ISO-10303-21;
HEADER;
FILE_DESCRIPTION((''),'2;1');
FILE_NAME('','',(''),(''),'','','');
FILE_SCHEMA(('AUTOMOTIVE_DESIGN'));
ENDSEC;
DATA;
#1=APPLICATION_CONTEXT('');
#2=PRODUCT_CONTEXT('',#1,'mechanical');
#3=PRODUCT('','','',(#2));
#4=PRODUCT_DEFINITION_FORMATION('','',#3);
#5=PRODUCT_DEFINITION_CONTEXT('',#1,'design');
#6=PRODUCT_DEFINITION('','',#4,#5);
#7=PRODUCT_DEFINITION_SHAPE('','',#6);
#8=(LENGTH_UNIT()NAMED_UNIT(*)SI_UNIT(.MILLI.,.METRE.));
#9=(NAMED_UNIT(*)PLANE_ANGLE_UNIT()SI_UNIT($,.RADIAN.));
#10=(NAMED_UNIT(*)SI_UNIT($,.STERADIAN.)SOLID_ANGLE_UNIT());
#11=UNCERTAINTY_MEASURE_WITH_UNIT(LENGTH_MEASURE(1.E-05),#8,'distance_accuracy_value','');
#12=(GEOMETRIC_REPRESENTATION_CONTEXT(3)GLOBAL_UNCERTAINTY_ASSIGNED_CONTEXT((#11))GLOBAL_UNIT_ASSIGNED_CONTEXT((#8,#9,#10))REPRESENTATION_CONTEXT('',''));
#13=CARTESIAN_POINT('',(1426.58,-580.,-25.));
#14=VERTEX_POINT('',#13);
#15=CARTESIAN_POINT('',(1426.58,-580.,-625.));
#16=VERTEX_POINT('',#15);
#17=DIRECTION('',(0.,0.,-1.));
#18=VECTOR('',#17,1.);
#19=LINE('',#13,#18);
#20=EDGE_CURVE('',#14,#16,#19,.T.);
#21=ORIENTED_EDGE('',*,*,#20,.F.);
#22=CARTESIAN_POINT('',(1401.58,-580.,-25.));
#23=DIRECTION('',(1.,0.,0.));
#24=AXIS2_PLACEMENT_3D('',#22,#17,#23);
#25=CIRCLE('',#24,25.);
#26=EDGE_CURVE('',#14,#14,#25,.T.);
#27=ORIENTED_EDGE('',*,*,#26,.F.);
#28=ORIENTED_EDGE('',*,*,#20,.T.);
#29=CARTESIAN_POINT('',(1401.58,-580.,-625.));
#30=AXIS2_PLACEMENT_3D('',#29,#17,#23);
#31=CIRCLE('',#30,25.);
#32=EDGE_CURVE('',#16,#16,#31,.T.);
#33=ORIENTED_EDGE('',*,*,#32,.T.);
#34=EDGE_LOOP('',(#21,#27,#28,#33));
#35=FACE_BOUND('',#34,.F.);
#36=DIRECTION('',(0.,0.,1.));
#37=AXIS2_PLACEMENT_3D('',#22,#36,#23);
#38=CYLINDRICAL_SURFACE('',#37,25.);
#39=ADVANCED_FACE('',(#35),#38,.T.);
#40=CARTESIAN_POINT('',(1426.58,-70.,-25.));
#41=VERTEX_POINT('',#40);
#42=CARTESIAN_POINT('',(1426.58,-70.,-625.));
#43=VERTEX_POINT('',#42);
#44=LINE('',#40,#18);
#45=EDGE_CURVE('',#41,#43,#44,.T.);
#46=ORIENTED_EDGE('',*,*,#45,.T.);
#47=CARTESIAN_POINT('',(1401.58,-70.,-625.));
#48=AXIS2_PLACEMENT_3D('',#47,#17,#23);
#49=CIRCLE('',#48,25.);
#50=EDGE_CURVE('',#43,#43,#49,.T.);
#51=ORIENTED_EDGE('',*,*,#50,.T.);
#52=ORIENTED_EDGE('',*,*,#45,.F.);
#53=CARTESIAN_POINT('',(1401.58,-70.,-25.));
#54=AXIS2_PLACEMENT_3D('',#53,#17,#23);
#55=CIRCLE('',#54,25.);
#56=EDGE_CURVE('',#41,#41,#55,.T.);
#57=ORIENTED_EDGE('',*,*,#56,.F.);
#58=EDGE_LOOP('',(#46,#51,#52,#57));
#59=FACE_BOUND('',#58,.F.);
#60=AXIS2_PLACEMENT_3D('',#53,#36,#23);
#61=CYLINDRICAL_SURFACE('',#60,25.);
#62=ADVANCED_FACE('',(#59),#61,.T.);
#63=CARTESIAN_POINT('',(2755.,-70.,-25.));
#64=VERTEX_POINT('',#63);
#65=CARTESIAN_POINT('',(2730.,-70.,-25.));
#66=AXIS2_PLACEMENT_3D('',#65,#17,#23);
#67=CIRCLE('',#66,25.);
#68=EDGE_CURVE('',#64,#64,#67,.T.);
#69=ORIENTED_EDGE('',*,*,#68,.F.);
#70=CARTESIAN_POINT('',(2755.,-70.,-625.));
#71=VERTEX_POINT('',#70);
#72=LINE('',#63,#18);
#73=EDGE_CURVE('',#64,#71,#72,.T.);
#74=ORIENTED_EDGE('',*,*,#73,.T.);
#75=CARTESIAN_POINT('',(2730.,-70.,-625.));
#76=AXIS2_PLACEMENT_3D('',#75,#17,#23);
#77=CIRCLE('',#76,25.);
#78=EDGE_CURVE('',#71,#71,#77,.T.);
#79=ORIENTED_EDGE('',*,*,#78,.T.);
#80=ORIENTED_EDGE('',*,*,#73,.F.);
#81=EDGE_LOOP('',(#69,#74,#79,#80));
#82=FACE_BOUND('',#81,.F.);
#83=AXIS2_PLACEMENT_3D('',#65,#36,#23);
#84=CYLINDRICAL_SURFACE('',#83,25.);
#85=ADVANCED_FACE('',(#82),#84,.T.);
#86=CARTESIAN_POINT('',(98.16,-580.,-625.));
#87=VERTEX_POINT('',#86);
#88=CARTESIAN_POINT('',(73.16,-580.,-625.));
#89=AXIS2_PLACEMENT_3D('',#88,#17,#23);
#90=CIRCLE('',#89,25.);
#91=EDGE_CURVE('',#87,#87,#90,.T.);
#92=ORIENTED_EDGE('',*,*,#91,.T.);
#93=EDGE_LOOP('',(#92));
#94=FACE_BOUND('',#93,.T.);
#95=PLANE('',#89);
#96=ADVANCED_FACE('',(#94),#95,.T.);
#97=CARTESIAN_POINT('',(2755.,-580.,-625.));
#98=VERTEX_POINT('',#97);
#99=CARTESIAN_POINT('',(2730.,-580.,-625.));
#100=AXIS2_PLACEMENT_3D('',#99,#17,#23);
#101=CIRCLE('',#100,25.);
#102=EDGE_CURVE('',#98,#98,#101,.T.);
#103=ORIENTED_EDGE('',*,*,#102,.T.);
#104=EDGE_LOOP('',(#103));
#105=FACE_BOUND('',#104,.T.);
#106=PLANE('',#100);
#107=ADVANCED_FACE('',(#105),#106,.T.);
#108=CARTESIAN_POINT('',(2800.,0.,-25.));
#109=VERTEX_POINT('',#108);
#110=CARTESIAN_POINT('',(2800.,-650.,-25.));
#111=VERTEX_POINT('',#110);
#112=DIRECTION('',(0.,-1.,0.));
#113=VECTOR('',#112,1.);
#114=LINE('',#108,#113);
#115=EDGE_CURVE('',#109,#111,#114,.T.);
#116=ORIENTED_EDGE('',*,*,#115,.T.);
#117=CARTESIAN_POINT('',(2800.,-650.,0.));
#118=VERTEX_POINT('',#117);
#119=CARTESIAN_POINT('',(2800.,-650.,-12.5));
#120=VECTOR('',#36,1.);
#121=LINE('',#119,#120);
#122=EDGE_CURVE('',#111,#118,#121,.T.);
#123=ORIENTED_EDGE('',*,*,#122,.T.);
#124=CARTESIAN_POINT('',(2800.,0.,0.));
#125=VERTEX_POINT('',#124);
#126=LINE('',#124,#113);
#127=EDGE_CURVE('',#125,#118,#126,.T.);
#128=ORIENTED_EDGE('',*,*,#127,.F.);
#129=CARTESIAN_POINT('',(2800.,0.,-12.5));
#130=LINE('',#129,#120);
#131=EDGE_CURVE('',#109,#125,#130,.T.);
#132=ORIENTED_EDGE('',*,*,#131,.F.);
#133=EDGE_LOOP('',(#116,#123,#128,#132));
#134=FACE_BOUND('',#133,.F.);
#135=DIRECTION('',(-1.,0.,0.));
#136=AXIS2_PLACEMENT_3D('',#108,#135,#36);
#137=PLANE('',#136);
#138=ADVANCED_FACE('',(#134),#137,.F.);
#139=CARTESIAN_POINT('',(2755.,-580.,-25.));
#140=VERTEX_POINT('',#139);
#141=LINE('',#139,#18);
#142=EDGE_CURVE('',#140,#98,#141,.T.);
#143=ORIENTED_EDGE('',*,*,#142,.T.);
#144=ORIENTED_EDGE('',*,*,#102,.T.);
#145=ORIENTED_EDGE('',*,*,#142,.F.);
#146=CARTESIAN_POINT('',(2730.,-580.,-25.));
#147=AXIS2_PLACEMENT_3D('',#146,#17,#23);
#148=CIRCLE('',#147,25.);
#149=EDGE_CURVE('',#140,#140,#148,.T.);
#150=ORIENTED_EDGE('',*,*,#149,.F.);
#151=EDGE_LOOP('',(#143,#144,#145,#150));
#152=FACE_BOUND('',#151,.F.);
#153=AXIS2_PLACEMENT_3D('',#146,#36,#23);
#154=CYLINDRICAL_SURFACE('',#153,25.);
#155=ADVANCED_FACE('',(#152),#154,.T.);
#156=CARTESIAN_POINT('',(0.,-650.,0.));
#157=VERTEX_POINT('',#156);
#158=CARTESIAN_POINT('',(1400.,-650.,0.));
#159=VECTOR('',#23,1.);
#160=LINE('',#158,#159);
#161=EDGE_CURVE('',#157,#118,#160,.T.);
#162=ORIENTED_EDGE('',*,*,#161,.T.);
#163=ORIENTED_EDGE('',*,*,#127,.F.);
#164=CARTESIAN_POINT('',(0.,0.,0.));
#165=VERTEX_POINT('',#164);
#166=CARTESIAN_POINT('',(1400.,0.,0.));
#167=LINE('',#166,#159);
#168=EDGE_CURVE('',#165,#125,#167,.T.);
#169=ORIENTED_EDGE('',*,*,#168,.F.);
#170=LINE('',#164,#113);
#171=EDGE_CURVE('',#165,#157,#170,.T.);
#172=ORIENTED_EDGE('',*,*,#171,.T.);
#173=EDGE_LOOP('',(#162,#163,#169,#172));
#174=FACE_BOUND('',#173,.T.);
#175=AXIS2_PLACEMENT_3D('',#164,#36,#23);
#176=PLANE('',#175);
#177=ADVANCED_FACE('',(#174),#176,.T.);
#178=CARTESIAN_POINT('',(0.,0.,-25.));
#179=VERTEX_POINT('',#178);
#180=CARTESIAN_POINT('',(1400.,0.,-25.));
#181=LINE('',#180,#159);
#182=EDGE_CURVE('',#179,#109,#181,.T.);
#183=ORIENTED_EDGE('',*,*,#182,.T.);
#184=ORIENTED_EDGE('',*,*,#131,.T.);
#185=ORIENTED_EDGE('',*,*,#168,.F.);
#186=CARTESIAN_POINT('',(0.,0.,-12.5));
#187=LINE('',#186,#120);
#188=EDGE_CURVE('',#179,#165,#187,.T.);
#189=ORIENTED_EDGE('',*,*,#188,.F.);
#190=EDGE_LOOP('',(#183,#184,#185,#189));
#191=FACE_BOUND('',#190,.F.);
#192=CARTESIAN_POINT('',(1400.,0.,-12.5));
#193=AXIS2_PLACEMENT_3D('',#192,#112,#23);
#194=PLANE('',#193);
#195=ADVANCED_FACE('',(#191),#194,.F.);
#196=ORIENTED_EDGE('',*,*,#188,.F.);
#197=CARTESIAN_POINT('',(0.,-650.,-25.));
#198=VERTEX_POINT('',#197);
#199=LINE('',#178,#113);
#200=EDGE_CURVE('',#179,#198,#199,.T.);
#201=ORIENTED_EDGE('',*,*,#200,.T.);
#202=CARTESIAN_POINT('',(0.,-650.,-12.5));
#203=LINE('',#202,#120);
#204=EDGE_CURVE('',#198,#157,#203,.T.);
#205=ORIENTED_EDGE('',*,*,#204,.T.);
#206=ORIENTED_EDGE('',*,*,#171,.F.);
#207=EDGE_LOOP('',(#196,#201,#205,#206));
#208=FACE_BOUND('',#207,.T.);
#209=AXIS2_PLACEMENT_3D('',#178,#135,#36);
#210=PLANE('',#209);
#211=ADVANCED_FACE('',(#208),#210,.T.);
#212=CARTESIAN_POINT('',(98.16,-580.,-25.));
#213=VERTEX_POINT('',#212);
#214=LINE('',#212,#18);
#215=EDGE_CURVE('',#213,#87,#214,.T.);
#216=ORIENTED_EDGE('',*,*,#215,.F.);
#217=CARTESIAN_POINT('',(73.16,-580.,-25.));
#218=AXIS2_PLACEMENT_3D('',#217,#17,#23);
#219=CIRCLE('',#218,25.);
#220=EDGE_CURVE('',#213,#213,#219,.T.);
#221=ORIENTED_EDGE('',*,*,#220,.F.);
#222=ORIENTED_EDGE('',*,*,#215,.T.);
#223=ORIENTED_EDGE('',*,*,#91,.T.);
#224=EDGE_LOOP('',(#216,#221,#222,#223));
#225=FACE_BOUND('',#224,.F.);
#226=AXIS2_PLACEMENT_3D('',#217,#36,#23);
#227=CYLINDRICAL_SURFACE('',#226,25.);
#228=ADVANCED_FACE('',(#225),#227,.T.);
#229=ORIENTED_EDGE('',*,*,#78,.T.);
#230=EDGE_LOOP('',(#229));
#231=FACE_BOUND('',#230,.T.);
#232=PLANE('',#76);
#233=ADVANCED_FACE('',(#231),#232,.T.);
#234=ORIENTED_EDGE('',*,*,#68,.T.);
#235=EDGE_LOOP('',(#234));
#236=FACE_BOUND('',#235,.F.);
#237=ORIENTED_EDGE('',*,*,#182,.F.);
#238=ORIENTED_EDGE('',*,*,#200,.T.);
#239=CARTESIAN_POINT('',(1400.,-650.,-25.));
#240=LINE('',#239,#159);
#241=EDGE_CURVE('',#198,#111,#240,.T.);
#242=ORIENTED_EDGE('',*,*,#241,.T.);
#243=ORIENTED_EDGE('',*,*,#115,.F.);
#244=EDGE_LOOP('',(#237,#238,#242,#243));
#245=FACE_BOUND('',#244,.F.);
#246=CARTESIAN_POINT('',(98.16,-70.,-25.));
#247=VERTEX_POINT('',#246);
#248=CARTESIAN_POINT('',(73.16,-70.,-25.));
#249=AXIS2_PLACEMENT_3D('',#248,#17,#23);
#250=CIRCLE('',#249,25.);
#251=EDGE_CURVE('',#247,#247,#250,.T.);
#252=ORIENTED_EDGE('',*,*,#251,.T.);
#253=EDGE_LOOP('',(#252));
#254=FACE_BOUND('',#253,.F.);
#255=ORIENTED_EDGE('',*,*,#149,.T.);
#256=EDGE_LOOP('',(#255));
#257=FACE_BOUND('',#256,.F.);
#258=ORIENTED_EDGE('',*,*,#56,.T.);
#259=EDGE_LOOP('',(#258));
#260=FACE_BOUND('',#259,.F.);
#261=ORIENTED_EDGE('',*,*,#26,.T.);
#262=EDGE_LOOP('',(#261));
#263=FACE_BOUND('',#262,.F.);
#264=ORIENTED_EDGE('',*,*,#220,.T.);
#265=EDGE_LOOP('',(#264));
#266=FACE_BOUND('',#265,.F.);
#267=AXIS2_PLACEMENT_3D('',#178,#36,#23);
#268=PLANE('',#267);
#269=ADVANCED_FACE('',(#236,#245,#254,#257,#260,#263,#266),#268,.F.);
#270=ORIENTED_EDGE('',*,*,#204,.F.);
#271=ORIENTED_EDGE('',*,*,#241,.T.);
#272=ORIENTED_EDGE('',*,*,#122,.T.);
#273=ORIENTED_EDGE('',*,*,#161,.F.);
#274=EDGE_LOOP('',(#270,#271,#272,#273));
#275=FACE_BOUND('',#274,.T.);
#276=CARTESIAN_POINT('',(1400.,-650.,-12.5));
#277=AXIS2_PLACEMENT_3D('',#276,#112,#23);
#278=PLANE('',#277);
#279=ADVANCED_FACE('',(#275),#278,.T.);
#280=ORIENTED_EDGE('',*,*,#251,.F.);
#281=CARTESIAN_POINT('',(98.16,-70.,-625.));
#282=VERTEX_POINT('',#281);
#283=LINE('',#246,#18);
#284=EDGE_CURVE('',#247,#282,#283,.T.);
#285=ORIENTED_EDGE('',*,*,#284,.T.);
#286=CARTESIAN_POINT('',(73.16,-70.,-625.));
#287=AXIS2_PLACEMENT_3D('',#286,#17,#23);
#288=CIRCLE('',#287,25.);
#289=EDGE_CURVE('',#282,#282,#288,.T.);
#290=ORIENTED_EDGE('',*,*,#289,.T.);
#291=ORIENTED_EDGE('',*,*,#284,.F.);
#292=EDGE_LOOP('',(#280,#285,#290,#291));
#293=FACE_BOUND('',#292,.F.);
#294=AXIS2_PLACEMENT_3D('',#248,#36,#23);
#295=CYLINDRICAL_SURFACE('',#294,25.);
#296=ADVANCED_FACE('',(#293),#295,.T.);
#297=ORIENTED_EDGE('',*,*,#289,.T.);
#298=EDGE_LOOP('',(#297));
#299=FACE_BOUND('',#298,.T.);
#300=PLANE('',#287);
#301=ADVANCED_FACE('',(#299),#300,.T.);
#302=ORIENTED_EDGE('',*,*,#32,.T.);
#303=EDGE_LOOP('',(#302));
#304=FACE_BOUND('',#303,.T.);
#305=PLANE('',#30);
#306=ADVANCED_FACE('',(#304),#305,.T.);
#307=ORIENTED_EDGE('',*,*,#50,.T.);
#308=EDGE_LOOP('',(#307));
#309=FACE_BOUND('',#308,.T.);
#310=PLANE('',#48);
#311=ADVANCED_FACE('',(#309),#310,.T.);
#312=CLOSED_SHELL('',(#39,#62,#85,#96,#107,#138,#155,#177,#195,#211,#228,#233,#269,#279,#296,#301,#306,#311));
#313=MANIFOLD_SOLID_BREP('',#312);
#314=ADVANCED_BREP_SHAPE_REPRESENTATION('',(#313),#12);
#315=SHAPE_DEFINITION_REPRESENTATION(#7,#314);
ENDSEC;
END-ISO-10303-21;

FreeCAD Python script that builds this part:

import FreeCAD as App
import Part
import Sketcher
from FreeCAD import Vector
Q = App.Units.Quantity

doc = App.newDocument("Part")
body = doc.addObject("PartDesign::Body", "Body")

# Sketch on XZ plane
sketch1 = doc.addObject("Sketcher::SketchObject", "Sketch")
body.addObject(sketch1)
sketch1.AttachmentSupport = (doc.XZ_Plane, [""])
sketch1.MapMode = "FlatFace"
sketch1.addGeometry([
    Part.LineSegment(Vector(0, 0, 0), Vector(0, -25, 0)),
    Part.LineSegment(Vector(0, -25, 0), Vector(2800, -25, 0)),
    Part.LineSegment(Vector(2800, -25, 0), Vector(2800, 0, 0)),
    Part.LineSegment(Vector(2800, 0, 0), Vector(0, 0, 0)),
], False)
sketch1.addConstraint([
    Sketcher.Constraint("Coincident", 0, 2, 1, 1),
    Sketcher.Constraint("Coincident", 1, 2, 2, 1),
    Sketcher.Constraint("Coincident", 2, 2, 3, 1),
    Sketcher.Constraint("Coincident", 3, 2, 0, 1),
    Sketcher.Constraint("Vertical", 0),
    Sketcher.Constraint("Horizontal", 1),
    Sketcher.Constraint("Vertical", 2),
    Sketcher.Constraint("Horizontal", 3),
    Sketcher.Constraint("Coincident", 3, 2, -1, 1),
    Sketcher.Constraint("DistanceX", 1, 1, 1, 2, Q("2800 mm")),
    Sketcher.Constraint("DistanceY", 0, 2, 0, 1, Q("25 mm")),
])
pad1 = doc.addObject("PartDesign::Pad", "Pad")
body.addObject(pad1)
pad1.Profile = sketch1
pad1.Length = 650

# Sketch on XY plane
sketch2 = doc.addObject("Sketcher::SketchObject", "Sketch001")
body.addObject(sketch2)
sketch2.AttachmentSupport = (doc.XY_Plane, [""])
sketch2.MapMode = "FlatFace"
sketch2.AttachmentOffset = App.Placement(Vector(0, 0, -25), App.Rotation())
sketch2.addGeometry([
    Part.Circle(Vector(73, -70, 0), Vector(0, 0, 1), 25),  # 0
    Part.Circle(Vector(73, -580, 0), Vector(0, 0, 1), 25),  # 1
    Part.Circle(Vector(1402, -70, 0), Vector(0, 0, 1), 25),  # 2
    Part.Circle(Vector(1402, -580, 0), Vector(0, 0, 1), 25),  # 3
    Part.Circle(Vector(2730, -70, 0), Vector(0, 0, 1), 25),  # 4
    Part.Circle(Vector(2730, -580, 0), Vector(0, 0, 1), 25),  # 5
], False)
sketch2.addConstraint([
    Sketcher.Constraint("Equal", 0, 1),
    Sketcher.Constraint("Equal", 1, 2),
    Sketcher.Constraint("Equal", 2, 3),
    Sketcher.Constraint("Equal", 3, 4),
    Sketcher.Constraint("Equal", 4, 5),
    Sketcher.Constraint("Horizontal", 0, 3, 2, 3),
    Sketcher.Constraint("Horizontal", 1, 3, 3, 3),
    Sketcher.Constraint("Horizontal", 2, 3, 4, 3),
    Sketcher.Constraint("Horizontal", 3, 3, 5, 3),
    Sketcher.Constraint("Vertical", 0, 3, 1, 3),
    Sketcher.Constraint("Vertical", 2, 3, 3, 3),
    Sketcher.Constraint("Vertical", 4, 3, 5, 3),
    Sketcher.Constraint("Diameter", 0, Q("50 mm")),
    Sketcher.Constraint("DistanceY", 0, 3, -1, 1, Q("70 mm")),
    Sketcher.Constraint("DistanceY", 1, 3, -1, 1, Q("580 mm")),
    Sketcher.Constraint("DistanceX", -1, 1, 4, 3, Q("2730 mm")),
    Sketcher.Constraint("DistanceX", -1, 1, 0, 3, Q("73.16 mm")),
    Sketcher.Constraint("DistanceX", -1, 1, 2, 3, Q("1401.58 mm")),
])
pad2 = doc.addObject("PartDesign::Pad", "Pad001")
body.addObject(pad2)
pad2.Profile = sketch2
pad2.Length = 600
pad2.Reversed = True

doc.recompute()
